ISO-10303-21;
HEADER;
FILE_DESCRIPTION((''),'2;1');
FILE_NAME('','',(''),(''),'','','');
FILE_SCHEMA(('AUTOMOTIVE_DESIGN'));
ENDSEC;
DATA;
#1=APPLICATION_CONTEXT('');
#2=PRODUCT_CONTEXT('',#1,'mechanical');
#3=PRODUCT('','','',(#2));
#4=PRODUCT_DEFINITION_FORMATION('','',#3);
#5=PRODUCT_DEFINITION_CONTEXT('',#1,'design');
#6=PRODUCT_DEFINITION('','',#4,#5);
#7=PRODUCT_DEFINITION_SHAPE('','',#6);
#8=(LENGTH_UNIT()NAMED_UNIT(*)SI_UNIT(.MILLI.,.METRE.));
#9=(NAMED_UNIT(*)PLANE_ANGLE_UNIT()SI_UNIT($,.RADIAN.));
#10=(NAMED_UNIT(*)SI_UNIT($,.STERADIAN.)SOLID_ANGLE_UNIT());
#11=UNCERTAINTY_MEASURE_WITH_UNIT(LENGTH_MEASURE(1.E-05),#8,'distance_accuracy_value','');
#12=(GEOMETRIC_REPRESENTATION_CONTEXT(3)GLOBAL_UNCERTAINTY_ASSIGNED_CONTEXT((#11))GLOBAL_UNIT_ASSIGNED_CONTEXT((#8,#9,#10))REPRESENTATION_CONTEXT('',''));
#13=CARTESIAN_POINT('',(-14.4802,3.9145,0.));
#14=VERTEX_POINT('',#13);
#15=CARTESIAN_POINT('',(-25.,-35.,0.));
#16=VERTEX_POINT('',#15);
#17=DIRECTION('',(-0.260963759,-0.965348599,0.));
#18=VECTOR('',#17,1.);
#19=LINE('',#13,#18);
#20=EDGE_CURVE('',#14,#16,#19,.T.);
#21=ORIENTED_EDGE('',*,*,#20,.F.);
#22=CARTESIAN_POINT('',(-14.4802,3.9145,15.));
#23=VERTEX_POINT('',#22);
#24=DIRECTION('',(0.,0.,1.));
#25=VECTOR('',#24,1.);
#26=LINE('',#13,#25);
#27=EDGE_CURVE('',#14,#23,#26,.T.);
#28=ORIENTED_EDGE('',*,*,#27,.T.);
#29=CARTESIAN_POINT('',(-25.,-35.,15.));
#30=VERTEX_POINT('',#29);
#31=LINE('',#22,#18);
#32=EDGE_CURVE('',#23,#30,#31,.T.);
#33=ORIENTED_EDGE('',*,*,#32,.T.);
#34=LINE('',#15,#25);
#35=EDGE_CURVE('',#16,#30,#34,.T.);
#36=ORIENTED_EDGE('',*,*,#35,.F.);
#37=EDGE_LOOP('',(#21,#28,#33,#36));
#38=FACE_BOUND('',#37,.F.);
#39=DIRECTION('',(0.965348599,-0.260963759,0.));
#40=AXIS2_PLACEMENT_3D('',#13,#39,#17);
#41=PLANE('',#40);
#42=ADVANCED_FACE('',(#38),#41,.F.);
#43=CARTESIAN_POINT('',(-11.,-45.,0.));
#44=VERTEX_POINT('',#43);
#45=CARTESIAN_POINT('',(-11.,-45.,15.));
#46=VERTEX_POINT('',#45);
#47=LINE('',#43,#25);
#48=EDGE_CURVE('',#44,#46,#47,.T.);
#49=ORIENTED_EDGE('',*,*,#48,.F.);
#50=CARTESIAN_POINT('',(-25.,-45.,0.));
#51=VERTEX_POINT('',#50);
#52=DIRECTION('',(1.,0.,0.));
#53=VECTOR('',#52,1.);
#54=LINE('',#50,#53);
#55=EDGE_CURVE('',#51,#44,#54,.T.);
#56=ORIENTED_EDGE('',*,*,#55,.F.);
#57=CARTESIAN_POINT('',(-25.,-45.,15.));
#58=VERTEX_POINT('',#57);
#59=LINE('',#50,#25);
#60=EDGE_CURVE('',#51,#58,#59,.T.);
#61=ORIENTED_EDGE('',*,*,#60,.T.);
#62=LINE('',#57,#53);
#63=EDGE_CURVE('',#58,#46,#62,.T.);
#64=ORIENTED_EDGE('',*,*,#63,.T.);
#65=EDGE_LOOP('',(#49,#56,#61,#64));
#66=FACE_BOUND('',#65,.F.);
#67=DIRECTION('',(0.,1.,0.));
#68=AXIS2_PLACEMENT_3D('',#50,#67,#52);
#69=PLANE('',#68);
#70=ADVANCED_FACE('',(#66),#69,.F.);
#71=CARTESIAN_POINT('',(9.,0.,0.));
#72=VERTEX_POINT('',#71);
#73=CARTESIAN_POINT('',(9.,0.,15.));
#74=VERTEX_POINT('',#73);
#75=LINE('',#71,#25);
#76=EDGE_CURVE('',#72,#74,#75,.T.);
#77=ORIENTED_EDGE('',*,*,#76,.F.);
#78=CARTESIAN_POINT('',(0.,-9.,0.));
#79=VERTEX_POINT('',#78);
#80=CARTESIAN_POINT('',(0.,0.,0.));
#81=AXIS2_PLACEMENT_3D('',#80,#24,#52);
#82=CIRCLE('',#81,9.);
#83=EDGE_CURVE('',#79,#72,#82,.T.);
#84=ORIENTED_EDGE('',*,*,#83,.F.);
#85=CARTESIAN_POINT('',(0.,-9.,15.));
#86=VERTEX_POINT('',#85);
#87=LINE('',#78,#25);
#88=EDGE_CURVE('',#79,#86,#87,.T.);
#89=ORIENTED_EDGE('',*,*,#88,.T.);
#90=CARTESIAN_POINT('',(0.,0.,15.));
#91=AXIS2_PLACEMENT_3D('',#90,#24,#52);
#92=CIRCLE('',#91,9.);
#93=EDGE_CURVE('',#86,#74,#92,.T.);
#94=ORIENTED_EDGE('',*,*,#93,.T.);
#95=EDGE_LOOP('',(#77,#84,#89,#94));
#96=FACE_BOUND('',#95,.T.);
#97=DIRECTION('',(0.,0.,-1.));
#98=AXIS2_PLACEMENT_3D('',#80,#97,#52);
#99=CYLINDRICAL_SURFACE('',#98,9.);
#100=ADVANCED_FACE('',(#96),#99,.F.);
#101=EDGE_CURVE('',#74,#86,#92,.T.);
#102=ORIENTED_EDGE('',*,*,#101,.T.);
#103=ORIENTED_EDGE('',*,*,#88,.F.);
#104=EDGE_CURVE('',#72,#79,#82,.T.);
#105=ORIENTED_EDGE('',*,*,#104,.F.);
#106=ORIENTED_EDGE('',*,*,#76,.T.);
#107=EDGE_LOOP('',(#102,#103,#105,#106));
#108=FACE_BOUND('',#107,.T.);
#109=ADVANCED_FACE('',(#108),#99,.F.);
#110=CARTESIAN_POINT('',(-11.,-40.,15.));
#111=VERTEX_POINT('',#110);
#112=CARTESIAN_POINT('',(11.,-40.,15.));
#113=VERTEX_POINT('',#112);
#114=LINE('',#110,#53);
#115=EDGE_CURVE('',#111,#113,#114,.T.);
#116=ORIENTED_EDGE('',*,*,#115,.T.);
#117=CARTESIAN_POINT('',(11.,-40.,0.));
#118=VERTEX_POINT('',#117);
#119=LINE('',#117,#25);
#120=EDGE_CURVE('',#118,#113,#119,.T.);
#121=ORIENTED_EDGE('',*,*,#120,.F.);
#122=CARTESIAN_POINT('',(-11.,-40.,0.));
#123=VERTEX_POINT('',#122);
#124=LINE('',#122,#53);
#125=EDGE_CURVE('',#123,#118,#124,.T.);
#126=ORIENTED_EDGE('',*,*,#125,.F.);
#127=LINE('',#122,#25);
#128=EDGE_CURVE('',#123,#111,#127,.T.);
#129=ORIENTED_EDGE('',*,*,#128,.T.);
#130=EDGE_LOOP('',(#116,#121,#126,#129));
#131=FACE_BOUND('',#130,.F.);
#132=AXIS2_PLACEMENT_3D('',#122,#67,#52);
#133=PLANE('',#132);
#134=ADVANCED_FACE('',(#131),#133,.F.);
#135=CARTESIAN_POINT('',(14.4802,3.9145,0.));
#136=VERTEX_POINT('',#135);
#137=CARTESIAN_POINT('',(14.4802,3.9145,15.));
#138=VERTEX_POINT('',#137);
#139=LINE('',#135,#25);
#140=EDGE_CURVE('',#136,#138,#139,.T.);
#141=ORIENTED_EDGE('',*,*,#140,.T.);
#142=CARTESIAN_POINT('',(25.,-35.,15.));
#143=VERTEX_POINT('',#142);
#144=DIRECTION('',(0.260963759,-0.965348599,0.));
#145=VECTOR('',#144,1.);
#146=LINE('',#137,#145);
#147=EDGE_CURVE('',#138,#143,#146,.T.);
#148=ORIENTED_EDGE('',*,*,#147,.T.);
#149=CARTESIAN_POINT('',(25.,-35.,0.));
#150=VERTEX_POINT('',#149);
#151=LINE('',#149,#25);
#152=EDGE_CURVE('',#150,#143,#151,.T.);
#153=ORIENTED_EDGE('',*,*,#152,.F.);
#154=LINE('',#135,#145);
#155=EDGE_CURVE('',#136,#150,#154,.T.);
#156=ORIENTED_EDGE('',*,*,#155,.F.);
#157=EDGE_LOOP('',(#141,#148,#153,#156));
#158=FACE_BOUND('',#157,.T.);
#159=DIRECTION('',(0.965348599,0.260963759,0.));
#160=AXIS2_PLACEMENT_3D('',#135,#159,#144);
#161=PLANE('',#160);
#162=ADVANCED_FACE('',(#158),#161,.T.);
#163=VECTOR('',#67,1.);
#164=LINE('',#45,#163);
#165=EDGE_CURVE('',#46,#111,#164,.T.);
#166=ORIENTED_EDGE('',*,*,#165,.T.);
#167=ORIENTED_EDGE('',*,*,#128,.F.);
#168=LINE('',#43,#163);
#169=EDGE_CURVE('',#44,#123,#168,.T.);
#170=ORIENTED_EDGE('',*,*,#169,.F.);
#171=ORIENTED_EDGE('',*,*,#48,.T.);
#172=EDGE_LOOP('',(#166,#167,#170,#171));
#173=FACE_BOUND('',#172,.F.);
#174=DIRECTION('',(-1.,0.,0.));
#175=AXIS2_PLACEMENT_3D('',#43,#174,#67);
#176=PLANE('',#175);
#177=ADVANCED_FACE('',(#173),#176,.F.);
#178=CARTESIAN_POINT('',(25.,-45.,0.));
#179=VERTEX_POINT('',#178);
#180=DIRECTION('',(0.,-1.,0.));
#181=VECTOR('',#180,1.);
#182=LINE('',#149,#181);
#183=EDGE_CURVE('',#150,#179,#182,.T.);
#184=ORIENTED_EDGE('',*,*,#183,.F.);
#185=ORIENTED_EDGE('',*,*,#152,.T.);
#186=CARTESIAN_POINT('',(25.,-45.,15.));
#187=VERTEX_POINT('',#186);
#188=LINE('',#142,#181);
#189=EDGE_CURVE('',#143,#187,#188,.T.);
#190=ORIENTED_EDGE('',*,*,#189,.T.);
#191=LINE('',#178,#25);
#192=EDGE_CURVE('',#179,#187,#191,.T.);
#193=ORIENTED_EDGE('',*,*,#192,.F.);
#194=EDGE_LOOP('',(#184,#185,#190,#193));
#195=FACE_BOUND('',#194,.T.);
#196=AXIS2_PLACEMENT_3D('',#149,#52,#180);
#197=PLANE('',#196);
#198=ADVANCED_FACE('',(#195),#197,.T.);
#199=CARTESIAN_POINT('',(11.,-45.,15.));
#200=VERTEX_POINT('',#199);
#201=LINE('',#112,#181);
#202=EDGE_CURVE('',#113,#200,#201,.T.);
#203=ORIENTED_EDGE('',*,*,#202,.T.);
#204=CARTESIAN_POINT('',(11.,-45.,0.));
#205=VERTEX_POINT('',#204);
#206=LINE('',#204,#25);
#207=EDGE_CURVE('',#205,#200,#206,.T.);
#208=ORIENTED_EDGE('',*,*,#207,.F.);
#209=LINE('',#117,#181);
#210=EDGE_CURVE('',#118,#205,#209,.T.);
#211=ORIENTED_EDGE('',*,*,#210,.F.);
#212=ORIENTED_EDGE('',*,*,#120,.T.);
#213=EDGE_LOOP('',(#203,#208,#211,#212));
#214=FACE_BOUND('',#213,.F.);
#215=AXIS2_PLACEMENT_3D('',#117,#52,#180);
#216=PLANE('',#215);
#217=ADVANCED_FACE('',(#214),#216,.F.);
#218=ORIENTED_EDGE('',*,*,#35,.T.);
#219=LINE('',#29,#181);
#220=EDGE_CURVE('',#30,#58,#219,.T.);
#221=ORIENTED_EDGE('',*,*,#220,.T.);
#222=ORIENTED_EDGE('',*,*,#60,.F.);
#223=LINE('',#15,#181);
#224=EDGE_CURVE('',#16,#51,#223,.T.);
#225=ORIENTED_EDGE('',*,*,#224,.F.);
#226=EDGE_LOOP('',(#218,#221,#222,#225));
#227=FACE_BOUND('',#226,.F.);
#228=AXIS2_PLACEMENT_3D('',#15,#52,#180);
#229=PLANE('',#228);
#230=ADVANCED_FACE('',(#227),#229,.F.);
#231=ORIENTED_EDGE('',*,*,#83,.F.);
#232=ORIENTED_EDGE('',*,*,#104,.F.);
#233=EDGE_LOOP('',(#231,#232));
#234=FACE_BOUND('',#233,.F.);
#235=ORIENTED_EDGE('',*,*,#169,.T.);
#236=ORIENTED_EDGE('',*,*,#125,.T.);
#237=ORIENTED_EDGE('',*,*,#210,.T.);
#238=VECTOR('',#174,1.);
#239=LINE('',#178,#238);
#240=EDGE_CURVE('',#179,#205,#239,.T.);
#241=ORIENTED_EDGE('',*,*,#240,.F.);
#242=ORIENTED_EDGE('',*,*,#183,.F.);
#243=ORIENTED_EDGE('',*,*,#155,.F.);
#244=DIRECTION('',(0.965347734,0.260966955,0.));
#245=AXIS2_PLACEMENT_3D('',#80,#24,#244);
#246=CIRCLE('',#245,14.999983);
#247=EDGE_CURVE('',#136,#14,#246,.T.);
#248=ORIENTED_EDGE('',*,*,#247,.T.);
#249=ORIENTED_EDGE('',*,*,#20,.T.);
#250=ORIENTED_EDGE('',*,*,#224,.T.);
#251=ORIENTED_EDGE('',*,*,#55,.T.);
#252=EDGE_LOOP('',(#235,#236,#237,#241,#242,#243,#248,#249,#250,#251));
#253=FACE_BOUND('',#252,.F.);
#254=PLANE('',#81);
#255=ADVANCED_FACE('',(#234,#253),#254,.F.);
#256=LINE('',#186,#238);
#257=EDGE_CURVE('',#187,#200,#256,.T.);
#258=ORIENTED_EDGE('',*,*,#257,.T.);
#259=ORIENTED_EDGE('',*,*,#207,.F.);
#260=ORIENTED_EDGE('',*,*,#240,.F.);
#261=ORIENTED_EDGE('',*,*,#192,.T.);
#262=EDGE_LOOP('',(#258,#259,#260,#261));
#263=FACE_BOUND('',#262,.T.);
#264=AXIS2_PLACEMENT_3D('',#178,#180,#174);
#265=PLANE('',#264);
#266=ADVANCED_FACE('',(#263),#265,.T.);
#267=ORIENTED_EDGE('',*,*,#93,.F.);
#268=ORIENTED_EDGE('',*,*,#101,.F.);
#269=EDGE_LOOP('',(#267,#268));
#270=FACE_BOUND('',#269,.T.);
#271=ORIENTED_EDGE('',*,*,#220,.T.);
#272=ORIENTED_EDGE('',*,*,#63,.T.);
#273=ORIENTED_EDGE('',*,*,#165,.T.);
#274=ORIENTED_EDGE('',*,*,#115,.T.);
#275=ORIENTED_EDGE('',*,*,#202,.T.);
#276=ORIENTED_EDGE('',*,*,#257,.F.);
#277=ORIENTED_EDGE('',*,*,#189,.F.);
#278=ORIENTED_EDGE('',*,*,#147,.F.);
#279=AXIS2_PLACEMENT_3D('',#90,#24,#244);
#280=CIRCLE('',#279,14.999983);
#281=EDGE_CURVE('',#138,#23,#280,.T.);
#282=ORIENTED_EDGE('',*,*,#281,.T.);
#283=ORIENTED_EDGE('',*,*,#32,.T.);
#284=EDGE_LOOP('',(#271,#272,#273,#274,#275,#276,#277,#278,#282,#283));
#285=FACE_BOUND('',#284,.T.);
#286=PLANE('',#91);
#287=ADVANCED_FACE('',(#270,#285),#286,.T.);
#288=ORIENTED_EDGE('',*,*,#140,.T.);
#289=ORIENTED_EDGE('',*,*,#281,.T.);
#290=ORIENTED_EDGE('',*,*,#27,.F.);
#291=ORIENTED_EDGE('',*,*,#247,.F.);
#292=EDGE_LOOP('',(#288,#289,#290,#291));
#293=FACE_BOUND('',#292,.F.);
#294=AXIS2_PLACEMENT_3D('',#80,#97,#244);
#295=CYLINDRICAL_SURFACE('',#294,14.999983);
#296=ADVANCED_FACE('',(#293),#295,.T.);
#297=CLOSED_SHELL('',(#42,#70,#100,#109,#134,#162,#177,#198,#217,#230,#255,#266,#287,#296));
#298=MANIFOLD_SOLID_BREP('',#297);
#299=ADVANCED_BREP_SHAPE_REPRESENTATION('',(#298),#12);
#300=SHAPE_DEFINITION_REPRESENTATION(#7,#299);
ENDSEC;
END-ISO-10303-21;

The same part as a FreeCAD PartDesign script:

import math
import FreeCAD as App
import Part
import Sketcher

V = App.Vector
Q = App.Units.Quantity

doc = App.newDocument("Part")
body = doc.addObject("PartDesign::Body", "Body")

sketch1 = body.newObject("Sketcher::SketchObject", "Sketch")
sketch1.AttachmentSupport = (doc.getObject("XY_Plane"), [""])
sketch1.MapMode = "FlatFace"
sketch1.addGeometry([
    Part.ArcOfCircle(Part.Circle(V(0, 0, 0), V(0, 0, 1), 14.999983), math.radians(15.127446), math.radians(164.872554)),
    Part.LineSegment(V(-14.4802, 3.9145, 0), V(-25, -35, 0)),
    Part.LineSegment(V(-25, -35, 0), V(-25, -45, 0)),
    Part.LineSegment(V(-25, -45, 0), V(-11, -45, 0)),
    Part.LineSegment(V(-11, -45, 0), V(-11, -40, 0)),
    Part.LineSegment(V(-11, -40, 0), V(11, -40, 0)),
    Part.LineSegment(V(11, -40, 0), V(11, -45, 0)),
    Part.LineSegment(V(11, -45, 0), V(25, -45, 0)),
    Part.LineSegment(V(25, -45, 0), V(25, -35, 0)),
    Part.LineSegment(V(25, -35, 0), V(14.4802, 3.9145, 0)),
    Part.Circle(V(0, 0, 0), V(0, 0, 1), 9),
], False)
sketch1.addConstraint([
    Sketcher.Constraint("Tangent", 0, 2, 1, 1),
    Sketcher.Constraint("Coincident", 1, 2, 2, 1),
    Sketcher.Constraint("Coincident", 2, 2, 3, 1),
    Sketcher.Constraint("Coincident", 3, 2, 4, 1),
    Sketcher.Constraint("Coincident", 4, 2, 5, 1),
    Sketcher.Constraint("Coincident", 5, 2, 6, 1),
    Sketcher.Constraint("Coincident", 6, 2, 7, 1),
    Sketcher.Constraint("Coincident", 7, 2, 8, 1),
    Sketcher.Constraint("Coincident", 8, 2, 9, 1),
    Sketcher.Constraint("Tangent", 9, 2, 0, 1),
    Sketcher.Constraint("Vertical", 2),
    Sketcher.Constraint("Horizontal", 3),
    Sketcher.Constraint("Vertical", 4),
    Sketcher.Constraint("Horizontal", 5),
    Sketcher.Constraint("Vertical", 6),
    Sketcher.Constraint("Horizontal", 7),
    Sketcher.Constraint("Vertical", 8),
    Sketcher.Constraint("Coincident", 0, 3, -1, 1),
    Sketcher.Constraint("Coincident", 10, 3, -1, 1),
    Sketcher.Constraint("Symmetric", 3, 2, 6, 2, -2),
    Sketcher.Constraint("Symmetric", 1, 2, 8, 2, -2),
    Sketcher.Constraint("Diameter", 10, Q("18 mm")),
    Sketcher.Constraint("Radius", 0, Q("15 mm")),
    Sketcher.Constraint("DistanceX", 5, 1, 5, 2, Q("22 mm")),
    Sketcher.Constraint("DistanceY", 2, 2, 2, 1, Q("10 mm")),
    Sketcher.Constraint("DistanceY", 4, 1, 4, 2, Q("5 mm")),
    Sketcher.Constraint("DistanceY", 2, 2, -1, 1, Q("45 mm")),
    Sketcher.Constraint("DistanceX", 2, 2, 7, 2, Q("50 mm")),
])
pad1 = body.newObject("PartDesign::Pad", "Pad")
pad1.Profile = sketch1
pad1.Length = 15

doc.recompute()
